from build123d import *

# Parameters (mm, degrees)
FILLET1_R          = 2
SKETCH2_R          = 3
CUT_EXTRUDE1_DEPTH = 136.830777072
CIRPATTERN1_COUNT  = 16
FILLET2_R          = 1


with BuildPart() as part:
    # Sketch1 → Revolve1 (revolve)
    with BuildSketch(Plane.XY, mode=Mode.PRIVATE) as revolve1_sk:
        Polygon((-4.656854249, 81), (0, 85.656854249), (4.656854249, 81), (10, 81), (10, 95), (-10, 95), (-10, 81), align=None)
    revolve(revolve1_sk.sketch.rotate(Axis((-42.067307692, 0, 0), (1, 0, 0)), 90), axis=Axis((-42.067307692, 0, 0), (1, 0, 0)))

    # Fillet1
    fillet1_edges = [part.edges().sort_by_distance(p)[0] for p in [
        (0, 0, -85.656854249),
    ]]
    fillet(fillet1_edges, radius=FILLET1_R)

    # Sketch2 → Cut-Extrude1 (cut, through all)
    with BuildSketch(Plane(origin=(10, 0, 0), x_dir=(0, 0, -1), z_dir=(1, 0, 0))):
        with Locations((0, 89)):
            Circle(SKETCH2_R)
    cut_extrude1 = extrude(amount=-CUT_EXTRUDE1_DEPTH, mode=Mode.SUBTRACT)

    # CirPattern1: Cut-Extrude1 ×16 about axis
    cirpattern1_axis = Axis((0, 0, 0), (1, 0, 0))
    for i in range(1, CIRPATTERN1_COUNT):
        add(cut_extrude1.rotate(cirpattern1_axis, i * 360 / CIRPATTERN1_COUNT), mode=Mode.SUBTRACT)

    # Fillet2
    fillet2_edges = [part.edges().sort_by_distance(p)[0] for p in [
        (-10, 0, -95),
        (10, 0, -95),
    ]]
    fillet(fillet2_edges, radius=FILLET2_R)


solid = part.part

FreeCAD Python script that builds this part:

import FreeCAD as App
import Part
import Sketcher
Q = App.Units.Quantity


def edges_at(feature, points):
    """Names of the edges that pass closest to the given points."""
    edges = feature.Shape.Edges
    near = lambda p: min(range(len(edges)), key=lambda i: edges[i].distToShape(Part.Vertex(*p))[0])
    return sorted({f"Edge{near(p) + 1}" for p in points})


def add_polygon(sketch, points):
    """Adds a closed chain of lines whose ends are joined by coincident constraints."""
    first, n = sketch.GeometryCount, len(points)
    for a, b in zip(points, points[1:] + points[:1]):
        sketch.addGeometry(Part.LineSegment(App.Vector(*a, 0), App.Vector(*b, 0)), False)
    for i in range(n):
        sketch.addConstraint(Sketcher.Constraint("Coincident", first + i, 2, first + (i + 1) % n, 1))

doc = App.newDocument("Part")
body = doc.addObject("PartDesign::Body", "Body")

sketch1 = body.newObject("Sketcher::SketchObject", "Sketch")
sketch1.AttachmentSupport = (doc.getObject("XY_Plane"), [""])
sketch1.MapMode = "FlatFace"
add_polygon(sketch1, [(-5, 81), (0, 86), (5, 81), (10, 81), (10, 95), (-10, 95), (-10, 81)])
sketch1.addConstraint(Sketcher.Constraint("Horizontal", 2))
sketch1.addConstraint(Sketcher.Constraint("Vertical", 3))
sketch1.addConstraint(Sketcher.Constraint("Horizontal", 4))
sketch1.addConstraint(Sketcher.Constraint("Vertical", 5))
sketch1.addConstraint(Sketcher.Constraint("Horizontal", 6))
sketch1.addConstraint(Sketcher.Constraint("Symmetric", 2, 2, 5, 2, -2))
sketch1.addConstraint(Sketcher.Constraint("PointOnObject", 0, 2, -2))
sketch1.addConstraint(Sketcher.Constraint("Perpendicular", 0, 1))
sketch1.addConstraint(Sketcher.Constraint("Equal", 2, 6))
sketch1.addConstraint(Sketcher.Constraint("DistanceX", 4, 2, 4, 1, Q("20 mm")))
sketch1.addConstraint(Sketcher.Constraint("DistanceY", 3, 1, 3, 2, Q("14 mm")))
sketch1.addConstraint(Sketcher.Constraint("DistanceY", -1, 1, 1, 2, Q("81 mm")))
sketch1.addConstraint(Sketcher.Constraint("DistanceX", 2, 1, 2, 2, Q("5.343146 mm")))
revolution = body.newObject("PartDesign::Revolution", "Revolution")
revolution.Profile = sketch1
revolution.ReferenceAxis = (sketch1, ["H_Axis"])
revolution.Angle = 360
doc.recompute()

fillet = body.newObject("PartDesign::Fillet", "Fillet")
fillet.Base = (revolution, edges_at(revolution, [(0, 0, -85.657)]))
fillet.Radius = 2

sketch2 = body.newObject("Sketcher::SketchObject", "Sketch001")
sketch2.AttachmentSupport = (doc.getObject("YZ_Plane"), [""])
sketch2.MapMode = "FlatFace"
sketch2.AttachmentOffset = App.Placement(App.Vector(0, 0, 10), App.Rotation())
sketch2.addGeometry(Part.Circle(App.Vector(89, 0, 0), App.Vector(0, 0, 1), 3), False)
sketch2.addConstraint(Sketcher.Constraint("PointOnObject", 0, 3, -1))
sketch2.addConstraint(Sketcher.Constraint("Diameter", 0, Q("6 mm")))
sketch2.addConstraint(Sketcher.Constraint("DistanceX", -1, 1, 0, 3, Q("89 mm")))
pocket1 = body.newObject("PartDesign::Pocket", "Pocket")
pocket1.Profile = sketch2
pocket1.Type = "ThroughAll"
doc.recompute()

polarpattern = body.newObject("PartDesign::PolarPattern", "PolarPattern")
polarpattern.Originals = [pocket1]
polarpattern.Axis = (doc.getObject("X_Axis"), [""])
polarpattern.Angle = 360
polarpattern.Occurrences = 16
body.Tip = polarpattern
doc.recompute()

fillet2 = body.newObject("PartDesign::Fillet", "Fillet001")
fillet2.Base = (polarpattern, edges_at(polarpattern, [(-10, 0, -95), (10, 0, -95)]))
fillet2.Radius = 1

doc.recompute()
